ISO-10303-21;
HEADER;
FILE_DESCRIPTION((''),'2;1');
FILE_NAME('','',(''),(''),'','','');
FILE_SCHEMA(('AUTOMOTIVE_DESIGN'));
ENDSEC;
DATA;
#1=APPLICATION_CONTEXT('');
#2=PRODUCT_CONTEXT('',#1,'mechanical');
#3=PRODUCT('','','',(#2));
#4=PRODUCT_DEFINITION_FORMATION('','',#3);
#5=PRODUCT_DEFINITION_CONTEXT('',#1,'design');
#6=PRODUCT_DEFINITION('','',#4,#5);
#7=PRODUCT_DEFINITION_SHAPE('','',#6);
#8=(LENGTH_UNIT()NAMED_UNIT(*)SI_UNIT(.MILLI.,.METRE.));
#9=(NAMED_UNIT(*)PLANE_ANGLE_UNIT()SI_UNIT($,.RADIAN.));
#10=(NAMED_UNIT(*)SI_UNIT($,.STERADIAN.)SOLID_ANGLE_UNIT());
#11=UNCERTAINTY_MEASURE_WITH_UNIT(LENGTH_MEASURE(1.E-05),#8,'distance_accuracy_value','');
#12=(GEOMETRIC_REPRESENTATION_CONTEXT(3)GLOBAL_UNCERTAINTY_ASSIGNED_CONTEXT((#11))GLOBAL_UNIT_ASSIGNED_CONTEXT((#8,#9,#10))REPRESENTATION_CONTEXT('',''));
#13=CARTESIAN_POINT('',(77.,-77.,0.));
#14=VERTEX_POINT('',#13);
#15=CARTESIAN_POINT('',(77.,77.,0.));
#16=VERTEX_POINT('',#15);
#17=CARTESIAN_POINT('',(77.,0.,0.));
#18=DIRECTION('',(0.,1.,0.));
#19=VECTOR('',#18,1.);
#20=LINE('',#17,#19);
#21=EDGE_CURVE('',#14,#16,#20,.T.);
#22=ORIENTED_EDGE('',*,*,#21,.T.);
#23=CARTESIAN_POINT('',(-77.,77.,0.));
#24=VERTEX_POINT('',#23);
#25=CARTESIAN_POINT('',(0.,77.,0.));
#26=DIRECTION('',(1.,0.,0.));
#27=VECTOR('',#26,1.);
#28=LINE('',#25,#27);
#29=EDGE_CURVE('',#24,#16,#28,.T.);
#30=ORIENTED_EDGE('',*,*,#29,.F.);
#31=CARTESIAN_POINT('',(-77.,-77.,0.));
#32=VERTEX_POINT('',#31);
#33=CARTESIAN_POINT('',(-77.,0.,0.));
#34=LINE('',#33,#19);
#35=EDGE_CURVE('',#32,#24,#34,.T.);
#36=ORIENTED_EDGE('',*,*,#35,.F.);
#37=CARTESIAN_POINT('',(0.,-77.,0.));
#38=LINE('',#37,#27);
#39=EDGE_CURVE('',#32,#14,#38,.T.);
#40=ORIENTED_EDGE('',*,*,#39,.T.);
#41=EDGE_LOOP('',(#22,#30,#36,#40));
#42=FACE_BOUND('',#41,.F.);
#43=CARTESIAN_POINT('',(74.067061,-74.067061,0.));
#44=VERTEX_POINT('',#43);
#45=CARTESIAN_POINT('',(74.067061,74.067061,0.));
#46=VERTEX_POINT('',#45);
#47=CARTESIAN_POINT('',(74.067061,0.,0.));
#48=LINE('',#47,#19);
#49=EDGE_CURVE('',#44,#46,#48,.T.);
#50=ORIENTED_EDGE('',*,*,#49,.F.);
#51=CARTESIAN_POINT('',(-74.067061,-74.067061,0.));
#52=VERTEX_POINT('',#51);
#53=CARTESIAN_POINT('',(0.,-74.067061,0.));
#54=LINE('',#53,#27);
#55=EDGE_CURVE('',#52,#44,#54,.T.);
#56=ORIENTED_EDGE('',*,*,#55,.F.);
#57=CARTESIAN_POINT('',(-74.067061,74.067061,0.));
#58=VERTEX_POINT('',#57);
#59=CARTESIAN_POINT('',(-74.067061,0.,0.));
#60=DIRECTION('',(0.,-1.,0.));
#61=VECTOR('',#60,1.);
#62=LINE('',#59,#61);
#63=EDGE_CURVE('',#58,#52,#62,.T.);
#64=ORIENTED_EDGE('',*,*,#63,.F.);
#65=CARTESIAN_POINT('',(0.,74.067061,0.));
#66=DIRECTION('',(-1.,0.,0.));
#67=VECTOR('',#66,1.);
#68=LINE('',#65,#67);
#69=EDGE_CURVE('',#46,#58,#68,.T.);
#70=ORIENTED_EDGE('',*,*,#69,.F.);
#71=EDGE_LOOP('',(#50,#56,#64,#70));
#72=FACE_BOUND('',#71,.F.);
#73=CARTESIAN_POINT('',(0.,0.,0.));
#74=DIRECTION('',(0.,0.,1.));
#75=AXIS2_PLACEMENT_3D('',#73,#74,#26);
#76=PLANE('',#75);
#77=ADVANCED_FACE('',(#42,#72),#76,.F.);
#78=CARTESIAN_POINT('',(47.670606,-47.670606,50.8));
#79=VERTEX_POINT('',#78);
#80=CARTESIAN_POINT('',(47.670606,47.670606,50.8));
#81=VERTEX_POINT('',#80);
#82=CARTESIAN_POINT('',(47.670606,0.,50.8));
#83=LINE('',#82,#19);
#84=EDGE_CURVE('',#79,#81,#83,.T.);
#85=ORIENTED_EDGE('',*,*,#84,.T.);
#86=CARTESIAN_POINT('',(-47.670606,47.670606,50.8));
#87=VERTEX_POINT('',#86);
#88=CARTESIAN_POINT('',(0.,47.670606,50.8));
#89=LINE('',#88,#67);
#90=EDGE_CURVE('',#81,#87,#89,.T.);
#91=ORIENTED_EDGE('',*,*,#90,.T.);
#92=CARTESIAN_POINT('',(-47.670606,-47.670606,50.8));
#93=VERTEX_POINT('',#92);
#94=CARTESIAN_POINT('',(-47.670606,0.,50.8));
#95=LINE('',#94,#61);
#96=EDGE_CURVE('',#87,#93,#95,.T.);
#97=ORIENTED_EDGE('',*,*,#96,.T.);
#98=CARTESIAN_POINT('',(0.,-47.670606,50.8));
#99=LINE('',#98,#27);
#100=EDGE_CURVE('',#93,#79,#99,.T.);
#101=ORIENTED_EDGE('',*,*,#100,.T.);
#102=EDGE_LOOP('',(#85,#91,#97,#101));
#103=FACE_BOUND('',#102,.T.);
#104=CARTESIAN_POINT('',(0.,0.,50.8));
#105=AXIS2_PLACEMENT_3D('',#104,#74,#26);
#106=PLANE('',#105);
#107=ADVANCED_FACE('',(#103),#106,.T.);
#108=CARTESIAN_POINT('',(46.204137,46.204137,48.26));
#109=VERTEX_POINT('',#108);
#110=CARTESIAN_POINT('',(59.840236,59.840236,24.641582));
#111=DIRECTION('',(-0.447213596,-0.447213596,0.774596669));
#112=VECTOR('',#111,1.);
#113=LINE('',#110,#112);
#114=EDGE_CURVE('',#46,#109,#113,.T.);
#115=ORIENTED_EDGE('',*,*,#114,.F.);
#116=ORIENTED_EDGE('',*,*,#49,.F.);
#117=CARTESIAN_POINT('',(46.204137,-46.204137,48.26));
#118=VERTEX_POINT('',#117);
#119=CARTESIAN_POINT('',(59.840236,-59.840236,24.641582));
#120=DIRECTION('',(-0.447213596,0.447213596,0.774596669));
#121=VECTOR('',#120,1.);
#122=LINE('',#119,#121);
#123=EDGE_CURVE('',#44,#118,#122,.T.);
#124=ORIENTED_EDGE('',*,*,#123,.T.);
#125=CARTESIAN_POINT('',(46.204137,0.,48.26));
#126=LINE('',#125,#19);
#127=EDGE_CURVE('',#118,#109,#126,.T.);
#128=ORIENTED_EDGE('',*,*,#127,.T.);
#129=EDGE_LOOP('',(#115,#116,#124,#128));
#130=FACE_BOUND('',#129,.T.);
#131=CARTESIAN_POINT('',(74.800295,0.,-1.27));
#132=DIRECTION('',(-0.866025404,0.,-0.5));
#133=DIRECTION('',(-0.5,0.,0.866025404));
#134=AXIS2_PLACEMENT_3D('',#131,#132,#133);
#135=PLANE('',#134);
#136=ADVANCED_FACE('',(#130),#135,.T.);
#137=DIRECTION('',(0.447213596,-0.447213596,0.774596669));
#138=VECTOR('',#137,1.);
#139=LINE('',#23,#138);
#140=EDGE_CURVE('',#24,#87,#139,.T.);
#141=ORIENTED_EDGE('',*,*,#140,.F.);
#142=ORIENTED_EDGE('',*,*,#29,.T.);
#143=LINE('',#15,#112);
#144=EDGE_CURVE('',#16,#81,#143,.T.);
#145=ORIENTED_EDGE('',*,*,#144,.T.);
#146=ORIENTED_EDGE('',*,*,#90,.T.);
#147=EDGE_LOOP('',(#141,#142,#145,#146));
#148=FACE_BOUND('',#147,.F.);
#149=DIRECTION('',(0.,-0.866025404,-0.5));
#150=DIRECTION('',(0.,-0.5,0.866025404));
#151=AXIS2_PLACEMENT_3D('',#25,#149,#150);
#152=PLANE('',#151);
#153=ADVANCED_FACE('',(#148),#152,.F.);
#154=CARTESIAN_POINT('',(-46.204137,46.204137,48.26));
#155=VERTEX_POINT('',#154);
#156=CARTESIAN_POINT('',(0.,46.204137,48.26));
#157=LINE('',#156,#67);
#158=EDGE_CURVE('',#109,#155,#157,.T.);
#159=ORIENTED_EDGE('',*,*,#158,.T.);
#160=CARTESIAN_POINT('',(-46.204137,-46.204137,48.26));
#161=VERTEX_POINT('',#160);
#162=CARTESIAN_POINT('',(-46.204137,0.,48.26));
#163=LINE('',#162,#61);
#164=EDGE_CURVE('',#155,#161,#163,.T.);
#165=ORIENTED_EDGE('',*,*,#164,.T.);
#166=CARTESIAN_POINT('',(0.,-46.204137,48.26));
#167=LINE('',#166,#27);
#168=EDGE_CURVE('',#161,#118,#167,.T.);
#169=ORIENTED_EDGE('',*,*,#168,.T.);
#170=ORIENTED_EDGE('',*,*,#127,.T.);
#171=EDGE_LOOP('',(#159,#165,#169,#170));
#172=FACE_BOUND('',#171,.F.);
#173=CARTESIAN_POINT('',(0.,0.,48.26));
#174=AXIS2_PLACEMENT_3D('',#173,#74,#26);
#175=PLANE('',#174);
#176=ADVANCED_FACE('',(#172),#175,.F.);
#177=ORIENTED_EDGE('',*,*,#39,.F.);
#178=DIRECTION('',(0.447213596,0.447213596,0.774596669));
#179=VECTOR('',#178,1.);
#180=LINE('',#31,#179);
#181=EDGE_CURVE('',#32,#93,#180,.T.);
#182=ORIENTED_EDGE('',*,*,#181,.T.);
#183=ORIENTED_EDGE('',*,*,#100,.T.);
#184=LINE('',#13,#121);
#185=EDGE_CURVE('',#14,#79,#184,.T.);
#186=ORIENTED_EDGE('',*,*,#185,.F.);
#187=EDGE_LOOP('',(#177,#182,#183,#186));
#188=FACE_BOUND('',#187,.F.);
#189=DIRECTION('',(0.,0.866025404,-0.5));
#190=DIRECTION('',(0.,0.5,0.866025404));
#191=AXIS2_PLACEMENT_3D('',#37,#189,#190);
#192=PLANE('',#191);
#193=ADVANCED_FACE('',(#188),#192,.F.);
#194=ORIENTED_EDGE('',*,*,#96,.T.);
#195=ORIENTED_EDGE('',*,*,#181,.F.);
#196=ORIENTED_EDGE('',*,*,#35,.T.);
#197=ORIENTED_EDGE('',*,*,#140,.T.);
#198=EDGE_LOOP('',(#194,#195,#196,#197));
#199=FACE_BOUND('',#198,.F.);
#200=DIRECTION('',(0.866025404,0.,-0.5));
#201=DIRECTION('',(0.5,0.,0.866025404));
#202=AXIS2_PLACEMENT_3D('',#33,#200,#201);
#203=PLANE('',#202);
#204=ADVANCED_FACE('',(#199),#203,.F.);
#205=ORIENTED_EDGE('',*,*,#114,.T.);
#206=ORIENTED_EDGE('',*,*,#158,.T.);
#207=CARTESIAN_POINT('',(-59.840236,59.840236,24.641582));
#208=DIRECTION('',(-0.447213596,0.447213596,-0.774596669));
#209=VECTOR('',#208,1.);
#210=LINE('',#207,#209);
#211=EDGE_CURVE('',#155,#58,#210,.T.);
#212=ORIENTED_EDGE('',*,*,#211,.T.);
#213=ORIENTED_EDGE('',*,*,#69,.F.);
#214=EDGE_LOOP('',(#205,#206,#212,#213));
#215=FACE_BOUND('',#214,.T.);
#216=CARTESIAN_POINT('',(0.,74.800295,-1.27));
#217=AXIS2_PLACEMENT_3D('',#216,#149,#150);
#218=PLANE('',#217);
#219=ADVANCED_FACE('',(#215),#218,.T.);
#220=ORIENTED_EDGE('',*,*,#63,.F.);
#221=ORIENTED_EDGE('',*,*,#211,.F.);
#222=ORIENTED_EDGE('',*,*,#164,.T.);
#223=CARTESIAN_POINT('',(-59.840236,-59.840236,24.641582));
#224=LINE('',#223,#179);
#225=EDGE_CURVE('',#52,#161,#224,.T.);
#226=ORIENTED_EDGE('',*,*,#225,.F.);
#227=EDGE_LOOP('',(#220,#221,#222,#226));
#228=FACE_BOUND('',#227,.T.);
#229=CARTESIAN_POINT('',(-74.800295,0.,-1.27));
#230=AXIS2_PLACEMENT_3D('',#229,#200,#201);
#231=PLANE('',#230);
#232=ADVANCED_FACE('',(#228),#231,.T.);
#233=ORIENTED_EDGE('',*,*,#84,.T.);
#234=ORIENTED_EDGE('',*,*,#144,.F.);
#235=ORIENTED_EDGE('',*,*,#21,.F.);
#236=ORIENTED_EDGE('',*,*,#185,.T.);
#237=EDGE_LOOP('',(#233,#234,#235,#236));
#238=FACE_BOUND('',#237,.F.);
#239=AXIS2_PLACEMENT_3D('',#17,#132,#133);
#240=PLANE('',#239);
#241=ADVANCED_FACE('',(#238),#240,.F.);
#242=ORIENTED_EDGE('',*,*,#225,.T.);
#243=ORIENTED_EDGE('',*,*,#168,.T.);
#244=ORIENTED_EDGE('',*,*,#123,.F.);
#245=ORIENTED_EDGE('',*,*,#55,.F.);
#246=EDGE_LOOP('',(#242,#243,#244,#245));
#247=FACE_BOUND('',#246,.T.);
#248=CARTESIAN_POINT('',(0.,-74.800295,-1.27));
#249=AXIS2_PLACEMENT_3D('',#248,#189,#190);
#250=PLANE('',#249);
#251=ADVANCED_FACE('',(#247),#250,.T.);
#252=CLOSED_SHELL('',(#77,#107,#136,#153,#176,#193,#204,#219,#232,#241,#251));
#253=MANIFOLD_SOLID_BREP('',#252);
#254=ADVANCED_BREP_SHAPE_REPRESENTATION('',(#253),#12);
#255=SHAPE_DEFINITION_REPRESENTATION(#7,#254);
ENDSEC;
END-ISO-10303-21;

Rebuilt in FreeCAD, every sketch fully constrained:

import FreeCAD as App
import Part
import Sketcher

V = App.Vector
Q = App.Units.Quantity


def faces_at(feature, points):
    """Names of the faces that lie closest to the given points."""
    faces = feature.Shape.Faces
    near = lambda p: min(range(len(faces)), key=lambda i: faces[i].distToShape(Part.Vertex(*p))[0])
    return sorted({f"Face{near(p) + 1}" for p in points})


def add_polygon(sketch, points):
    """Adds a closed chain of lines whose ends are joined by coincident constraints."""
    first, n = sketch.GeometryCount, len(points)
    for a, b in zip(points, points[1:] + points[:1]):
        sketch.addGeometry(Part.LineSegment(App.Vector(*a, 0), App.Vector(*b, 0)), False)
    for i in range(n):
        sketch.addConstraint(Sketcher.Constraint("Coincident", first + i, 2, first + (i + 1) % n, 1))

doc = App.newDocument("Part")
body = doc.addObject("PartDesign::Body", "Body")

sketch1 = body.newObject("Sketcher::SketchObject", "Sketch")
sketch1.AttachmentSupport = (doc.getObject("XY_Plane"), [""])
sketch1.MapMode = "FlatFace"
add_polygon(sketch1, [(-77, 77), (-77, -77), (77, -77), (77, 77)])
sketch1.addConstraint([
    Sketcher.Constraint("Vertical", 0),
    Sketcher.Constraint("Horizontal", 1),
    Sketcher.Constraint("Vertical", 2),
    Sketcher.Constraint("Horizontal", 3),
    Sketcher.Constraint("Symmetric", 0, 2, 2, 2, -1, 1),
    Sketcher.Constraint("Equal", 3, 0),
    Sketcher.Constraint("DistanceX", 1, 1, 1, 2, Q("154 mm")),
])
pad1 = body.newObject("PartDesign::Pad", "Pad")
pad1.Profile = sketch1
pad1.Length = Q("2 in")
pad1.TaperAngle = -30
doc.recompute()

thickness = body.newObject("PartDesign::Thickness", "Thickness")
thickness.Base = (pad1, faces_at(pad1, [(0, 0, 0)]))
thickness.Value = Q("0.1 in")
thickness.Reversed = True
thickness.Join = "Arc"

doc.recompute()
